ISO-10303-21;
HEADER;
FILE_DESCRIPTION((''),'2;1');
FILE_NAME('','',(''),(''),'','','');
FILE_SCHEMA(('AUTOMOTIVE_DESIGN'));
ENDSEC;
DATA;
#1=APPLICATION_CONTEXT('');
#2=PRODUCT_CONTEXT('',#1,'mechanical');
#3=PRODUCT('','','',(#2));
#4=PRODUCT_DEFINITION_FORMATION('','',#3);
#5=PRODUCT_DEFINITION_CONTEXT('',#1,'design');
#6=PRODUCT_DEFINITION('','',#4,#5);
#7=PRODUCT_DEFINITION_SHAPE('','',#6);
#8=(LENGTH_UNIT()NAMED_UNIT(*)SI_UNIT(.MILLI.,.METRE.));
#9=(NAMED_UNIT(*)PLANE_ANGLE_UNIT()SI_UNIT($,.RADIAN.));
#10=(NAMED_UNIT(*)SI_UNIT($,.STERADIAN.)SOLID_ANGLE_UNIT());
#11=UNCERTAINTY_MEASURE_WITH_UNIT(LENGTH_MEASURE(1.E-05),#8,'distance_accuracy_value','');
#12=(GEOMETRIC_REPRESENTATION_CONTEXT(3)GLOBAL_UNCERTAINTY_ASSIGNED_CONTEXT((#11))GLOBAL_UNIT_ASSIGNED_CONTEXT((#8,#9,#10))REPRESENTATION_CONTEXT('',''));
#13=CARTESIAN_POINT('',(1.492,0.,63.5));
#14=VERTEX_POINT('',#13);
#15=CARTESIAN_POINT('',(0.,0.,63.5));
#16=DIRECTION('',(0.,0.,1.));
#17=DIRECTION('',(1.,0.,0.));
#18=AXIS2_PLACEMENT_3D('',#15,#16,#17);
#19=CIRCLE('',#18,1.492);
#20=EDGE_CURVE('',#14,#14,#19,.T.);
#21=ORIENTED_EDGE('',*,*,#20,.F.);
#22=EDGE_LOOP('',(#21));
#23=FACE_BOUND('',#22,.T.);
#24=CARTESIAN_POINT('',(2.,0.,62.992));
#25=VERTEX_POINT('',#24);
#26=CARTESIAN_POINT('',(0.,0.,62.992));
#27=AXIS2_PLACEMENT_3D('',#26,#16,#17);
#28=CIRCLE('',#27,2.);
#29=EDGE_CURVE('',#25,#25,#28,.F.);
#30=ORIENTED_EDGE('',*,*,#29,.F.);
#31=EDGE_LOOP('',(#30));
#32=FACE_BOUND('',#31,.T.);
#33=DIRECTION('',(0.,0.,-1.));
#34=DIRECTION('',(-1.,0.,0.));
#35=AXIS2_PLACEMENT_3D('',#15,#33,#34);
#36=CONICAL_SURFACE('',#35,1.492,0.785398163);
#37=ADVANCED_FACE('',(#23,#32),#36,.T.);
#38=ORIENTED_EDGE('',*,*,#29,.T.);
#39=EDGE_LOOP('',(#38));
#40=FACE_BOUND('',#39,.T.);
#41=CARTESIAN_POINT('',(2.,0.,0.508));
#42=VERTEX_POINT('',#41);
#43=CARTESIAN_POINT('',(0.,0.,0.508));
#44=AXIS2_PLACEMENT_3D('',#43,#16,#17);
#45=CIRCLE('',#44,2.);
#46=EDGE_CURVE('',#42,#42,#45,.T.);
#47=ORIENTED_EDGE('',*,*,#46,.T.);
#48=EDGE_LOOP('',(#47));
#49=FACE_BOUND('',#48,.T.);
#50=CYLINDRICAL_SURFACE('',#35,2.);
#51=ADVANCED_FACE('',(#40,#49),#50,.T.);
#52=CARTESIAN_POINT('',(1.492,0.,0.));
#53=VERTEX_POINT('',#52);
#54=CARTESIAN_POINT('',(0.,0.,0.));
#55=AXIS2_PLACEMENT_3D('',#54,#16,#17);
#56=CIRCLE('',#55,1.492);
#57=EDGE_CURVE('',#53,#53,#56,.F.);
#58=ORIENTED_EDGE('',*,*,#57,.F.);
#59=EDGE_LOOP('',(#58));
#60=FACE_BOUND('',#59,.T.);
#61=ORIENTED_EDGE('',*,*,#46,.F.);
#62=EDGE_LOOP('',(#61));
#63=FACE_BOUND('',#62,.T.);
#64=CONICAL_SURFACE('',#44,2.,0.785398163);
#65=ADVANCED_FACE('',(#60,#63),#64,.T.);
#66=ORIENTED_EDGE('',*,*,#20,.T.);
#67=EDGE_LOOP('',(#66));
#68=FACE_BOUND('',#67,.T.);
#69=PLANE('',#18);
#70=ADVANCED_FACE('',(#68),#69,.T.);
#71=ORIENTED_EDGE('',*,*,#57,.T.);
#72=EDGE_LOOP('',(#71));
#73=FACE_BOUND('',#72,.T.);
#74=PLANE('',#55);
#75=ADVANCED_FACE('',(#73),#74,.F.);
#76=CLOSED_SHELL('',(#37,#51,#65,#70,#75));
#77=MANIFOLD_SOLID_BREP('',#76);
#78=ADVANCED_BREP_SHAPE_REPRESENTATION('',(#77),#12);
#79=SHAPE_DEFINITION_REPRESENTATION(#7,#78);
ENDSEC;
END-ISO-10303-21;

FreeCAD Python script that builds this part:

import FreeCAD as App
import Part
import Sketcher

V = App.Vector
Q = App.Units.Quantity


def edges_at(feature, points):
    """Names of the edges that pass closest to the given points."""
    edges = feature.Shape.Edges
    near = lambda p: min(range(len(edges)), key=lambda i: edges[i].distToShape(Part.Vertex(*p))[0])
    return sorted({f"Edge{near(p) + 1}" for p in points})

doc = App.newDocument("Part")
params = doc.addObject("Spreadsheet::Sheet", "Params")
for row, (alias, value) in enumerate([
    ("pad1_length", "2.5 in"),
    ("chamfer_size", "0.02 in"),
], start=1):
    params.set(f"A{row}", alias)
    params.set(f"B{row}", "=" + value)
    params.setAlias(f"B{row}", alias)

body = doc.addObject("PartDesign::Body", "Body")

# Sketch on XY plane
sketch1 = doc.addObject("Sketcher::SketchObject", "Sketch")
body.addObject(sketch1)
sketch1.AttachmentSupport = (doc.XY_Plane, [""])
sketch1.MapMode = "FlatFace"
sketch1.addGeometry(Part.Circle(V(0, 0, 0), V(0, 0, 1), 2), False)
sketch1.addConstraint([
    Sketcher.Constraint("Coincident", 0, 3, -1, 1),
    Sketcher.Constraint("Diameter", 0, Q("4 mm")),
])
pad1 = doc.addObject("PartDesign::Pad", "Pad")
body.addObject(pad1)
pad1.Profile = sketch1
pad1.setExpression("Length", "Params.pad1_length")
doc.recompute()

chamfer = doc.addObject("PartDesign::Chamfer", "Chamfer")
body.addObject(chamfer)
chamfer.Base = (pad1, edges_at(pad1, [(-2, 0, 0), (-2, 0, 63.5)]))
chamfer.setExpression("Size", "Params.chamfer_size")

doc.recompute()
